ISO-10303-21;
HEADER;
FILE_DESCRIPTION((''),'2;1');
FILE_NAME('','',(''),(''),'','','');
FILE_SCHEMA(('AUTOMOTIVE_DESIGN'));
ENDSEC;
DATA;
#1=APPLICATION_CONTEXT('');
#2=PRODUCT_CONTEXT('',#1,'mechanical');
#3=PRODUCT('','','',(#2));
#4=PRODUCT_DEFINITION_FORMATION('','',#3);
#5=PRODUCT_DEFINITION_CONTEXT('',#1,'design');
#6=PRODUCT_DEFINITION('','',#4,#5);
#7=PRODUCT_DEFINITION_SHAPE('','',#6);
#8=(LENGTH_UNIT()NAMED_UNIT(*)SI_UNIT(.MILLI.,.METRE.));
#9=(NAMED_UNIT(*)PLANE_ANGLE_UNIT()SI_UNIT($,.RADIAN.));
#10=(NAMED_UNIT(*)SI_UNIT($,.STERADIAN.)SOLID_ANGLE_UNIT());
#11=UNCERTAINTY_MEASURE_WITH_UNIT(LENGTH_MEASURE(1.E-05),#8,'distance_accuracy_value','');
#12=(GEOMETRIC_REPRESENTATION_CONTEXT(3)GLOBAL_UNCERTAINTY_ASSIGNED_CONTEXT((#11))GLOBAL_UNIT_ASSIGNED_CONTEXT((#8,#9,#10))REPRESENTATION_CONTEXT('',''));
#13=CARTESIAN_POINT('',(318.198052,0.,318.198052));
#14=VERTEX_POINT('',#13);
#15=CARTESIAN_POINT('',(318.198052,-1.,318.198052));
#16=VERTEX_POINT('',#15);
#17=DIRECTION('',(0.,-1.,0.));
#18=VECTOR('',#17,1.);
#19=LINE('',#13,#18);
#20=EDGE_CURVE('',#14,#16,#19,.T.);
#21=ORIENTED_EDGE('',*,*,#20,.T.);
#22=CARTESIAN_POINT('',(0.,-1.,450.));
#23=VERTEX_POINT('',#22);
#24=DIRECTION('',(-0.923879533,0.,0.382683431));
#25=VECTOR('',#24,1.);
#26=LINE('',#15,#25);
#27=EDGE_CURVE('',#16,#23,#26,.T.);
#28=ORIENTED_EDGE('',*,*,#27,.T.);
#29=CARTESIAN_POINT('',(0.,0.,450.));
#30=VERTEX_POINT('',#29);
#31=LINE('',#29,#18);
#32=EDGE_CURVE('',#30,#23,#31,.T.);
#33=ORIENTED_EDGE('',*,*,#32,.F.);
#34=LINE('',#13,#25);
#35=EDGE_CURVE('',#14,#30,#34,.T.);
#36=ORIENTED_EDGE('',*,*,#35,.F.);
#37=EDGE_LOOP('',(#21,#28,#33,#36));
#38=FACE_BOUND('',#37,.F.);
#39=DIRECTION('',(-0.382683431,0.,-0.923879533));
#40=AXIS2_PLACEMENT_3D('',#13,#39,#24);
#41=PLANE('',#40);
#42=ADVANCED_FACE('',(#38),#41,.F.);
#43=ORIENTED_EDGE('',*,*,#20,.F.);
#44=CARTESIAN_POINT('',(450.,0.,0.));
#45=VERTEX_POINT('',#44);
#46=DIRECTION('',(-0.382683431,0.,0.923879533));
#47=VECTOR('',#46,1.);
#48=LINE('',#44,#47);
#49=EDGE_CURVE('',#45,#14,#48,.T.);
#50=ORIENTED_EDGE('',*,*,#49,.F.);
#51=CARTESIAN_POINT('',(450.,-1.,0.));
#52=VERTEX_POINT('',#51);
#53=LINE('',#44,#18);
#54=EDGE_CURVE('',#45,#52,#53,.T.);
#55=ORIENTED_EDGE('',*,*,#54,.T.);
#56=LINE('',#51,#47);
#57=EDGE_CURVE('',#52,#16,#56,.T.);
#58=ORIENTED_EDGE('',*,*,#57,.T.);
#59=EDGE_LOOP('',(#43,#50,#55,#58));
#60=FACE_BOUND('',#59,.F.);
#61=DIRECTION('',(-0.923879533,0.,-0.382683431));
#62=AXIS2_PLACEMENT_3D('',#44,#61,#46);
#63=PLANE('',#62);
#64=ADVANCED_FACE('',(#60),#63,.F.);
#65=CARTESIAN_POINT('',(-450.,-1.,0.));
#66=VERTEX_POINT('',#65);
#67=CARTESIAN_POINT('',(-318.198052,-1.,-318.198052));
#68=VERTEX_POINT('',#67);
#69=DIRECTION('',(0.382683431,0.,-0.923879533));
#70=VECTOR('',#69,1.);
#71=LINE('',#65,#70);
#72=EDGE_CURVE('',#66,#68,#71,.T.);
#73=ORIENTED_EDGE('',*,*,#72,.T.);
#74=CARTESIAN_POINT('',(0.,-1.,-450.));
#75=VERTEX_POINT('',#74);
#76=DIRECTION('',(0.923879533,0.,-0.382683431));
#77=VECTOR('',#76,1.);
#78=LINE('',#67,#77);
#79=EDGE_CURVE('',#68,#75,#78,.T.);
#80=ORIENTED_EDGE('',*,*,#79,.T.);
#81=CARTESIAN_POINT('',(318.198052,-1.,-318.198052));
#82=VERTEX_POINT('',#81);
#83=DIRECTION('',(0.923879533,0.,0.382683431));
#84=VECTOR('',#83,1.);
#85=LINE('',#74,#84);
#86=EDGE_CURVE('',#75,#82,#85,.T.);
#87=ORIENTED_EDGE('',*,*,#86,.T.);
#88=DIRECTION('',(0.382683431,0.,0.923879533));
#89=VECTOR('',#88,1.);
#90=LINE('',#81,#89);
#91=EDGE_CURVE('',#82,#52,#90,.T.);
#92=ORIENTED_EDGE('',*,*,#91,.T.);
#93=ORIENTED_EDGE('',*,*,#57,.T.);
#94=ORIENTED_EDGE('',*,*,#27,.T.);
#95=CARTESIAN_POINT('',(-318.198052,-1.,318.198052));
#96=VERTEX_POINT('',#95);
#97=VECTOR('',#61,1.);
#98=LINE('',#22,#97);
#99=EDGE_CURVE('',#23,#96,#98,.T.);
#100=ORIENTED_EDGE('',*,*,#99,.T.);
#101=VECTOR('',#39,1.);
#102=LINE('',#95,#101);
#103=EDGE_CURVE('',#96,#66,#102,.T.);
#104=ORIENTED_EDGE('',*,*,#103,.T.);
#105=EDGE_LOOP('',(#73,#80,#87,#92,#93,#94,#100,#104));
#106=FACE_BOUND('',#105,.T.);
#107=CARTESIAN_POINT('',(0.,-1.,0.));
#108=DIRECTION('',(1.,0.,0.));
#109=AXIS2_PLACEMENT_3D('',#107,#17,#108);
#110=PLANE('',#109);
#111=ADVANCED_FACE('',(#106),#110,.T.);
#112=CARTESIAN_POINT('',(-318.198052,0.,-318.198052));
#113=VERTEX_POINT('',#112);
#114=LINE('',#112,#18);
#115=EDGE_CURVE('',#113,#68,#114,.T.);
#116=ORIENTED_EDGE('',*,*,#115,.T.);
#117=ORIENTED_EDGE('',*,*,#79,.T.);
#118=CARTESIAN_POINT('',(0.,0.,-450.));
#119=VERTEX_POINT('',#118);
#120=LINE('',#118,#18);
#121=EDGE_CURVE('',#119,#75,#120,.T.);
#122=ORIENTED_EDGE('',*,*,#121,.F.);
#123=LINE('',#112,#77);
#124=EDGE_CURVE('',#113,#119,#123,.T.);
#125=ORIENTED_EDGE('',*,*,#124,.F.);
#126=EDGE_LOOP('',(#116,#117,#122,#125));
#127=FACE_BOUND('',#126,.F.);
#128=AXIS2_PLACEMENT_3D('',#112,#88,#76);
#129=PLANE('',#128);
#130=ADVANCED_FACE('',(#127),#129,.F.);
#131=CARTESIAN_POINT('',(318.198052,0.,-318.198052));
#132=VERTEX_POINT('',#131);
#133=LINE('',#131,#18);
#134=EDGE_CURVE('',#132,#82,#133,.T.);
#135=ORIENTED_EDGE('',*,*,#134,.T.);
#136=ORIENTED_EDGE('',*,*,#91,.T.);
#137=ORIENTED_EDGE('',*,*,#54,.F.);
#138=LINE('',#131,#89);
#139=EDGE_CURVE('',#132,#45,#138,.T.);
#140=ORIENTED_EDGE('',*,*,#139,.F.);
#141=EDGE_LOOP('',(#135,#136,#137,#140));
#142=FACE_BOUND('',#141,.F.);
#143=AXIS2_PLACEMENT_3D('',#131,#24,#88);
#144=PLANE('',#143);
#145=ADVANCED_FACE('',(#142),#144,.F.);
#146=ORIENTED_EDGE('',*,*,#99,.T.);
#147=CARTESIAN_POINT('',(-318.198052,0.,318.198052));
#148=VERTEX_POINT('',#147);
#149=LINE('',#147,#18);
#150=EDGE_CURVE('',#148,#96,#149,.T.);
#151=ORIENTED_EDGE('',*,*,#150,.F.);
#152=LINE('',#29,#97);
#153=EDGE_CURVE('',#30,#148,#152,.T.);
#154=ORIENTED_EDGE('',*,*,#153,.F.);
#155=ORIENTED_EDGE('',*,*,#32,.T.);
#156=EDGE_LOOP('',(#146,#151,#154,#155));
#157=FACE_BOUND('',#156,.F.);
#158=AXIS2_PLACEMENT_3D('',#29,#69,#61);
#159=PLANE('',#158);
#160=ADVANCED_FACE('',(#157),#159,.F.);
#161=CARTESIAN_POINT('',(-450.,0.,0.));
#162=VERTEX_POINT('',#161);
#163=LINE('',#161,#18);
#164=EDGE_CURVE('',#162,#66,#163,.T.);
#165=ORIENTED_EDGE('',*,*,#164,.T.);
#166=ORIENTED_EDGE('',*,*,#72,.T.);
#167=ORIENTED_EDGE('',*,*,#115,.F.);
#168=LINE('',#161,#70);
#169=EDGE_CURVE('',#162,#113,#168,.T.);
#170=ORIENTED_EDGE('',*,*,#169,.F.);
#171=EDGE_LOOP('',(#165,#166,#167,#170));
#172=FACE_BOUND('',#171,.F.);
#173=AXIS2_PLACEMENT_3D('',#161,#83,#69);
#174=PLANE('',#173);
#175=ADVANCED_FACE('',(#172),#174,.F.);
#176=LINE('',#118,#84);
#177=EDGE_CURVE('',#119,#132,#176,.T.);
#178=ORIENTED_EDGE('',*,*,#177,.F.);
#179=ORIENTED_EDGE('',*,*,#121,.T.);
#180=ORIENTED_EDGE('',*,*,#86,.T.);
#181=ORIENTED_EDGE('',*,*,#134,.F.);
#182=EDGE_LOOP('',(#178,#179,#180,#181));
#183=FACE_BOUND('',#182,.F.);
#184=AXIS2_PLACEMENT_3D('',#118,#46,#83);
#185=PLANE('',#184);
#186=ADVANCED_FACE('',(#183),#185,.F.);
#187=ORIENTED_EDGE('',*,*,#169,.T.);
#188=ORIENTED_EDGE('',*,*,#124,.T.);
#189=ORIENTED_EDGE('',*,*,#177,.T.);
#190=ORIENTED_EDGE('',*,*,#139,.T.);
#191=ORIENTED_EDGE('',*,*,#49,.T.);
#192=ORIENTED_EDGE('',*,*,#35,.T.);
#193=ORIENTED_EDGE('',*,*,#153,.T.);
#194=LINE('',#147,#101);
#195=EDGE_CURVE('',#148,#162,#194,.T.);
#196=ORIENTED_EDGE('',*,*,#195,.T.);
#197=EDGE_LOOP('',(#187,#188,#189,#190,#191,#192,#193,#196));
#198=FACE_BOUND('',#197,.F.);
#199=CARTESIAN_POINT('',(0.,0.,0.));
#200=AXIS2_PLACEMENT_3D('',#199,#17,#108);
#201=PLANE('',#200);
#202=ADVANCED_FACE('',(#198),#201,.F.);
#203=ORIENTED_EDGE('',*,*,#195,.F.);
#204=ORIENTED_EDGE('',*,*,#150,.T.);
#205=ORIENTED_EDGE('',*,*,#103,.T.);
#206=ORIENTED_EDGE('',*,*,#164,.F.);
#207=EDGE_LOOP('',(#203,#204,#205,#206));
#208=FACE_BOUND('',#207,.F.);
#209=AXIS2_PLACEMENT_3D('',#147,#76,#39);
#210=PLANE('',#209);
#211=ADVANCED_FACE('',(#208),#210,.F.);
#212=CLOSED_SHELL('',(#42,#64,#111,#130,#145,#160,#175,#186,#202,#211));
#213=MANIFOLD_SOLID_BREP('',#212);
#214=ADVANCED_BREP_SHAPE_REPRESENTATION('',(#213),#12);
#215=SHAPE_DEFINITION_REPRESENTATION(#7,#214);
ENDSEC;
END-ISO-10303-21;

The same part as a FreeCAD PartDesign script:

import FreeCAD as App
import Part
import Sketcher
from FreeCAD import Vector
Q = App.Units.Quantity

doc = App.newDocument("Part")
body = doc.addObject("PartDesign::Body", "Body")

# Sketch on XZ plane
sketch1 = doc.addObject("Sketcher::SketchObject", "Sketch")
body.addObject(sketch1)
sketch1.AttachmentSupport = (doc.XZ_Plane, [""])
sketch1.MapMode = "FlatFace"
sketch1.addGeometry([
    Part.LineSegment(Vector(450, 0, 0), Vector(318, 318, 0)),  # 0
    Part.LineSegment(Vector(318, 318, 0), Vector(0, 450, 0)),  # 1
    Part.LineSegment(Vector(0, 450, 0), Vector(-318, 318, 0)),  # 2
    Part.LineSegment(Vector(-318, 318, 0), Vector(-450, 0, 0)),  # 3
    Part.LineSegment(Vector(-450, 0, 0), Vector(-318, -318, 0)),  # 4
    Part.LineSegment(Vector(-318, -318, 0), Vector(0, -450, 0)),  # 5
    Part.LineSegment(Vector(0, -450, 0), Vector(318, -318, 0)),  # 6
    Part.LineSegment(Vector(318, -318, 0), Vector(450, 0, 0)),  # 7
], False)
sketch1.addConstraint([
    Sketcher.Constraint("Coincident", 0, 2, 1, 1),
    Sketcher.Constraint("Coincident", 1, 2, 2, 1),
    Sketcher.Constraint("Coincident", 2, 2, 3, 1),
    Sketcher.Constraint("Coincident", 3, 2, 4, 1),
    Sketcher.Constraint("Coincident", 4, 2, 5, 1),
    Sketcher.Constraint("Coincident", 5, 2, 6, 1),
    Sketcher.Constraint("Coincident", 6, 2, 7, 1),
    Sketcher.Constraint("Coincident", 7, 2, 0, 1),
    Sketcher.Constraint("Symmetric", 0, 2, 4, 2, -1, 1),
    Sketcher.Constraint("Symmetric", 1, 2, 5, 2, -1, 1),
    Sketcher.Constraint("Symmetric", 2, 2, 6, 2, -1, 1),
    Sketcher.Constraint("Symmetric", 3, 2, 7, 2, -1, 1),
    Sketcher.Constraint("Symmetric", 0, 2, 2, 2, -2),
    Sketcher.Constraint("PointOnObject", 1, 2, -2),
    Sketcher.Constraint("PointOnObject", 3, 2, -1),
    Sketcher.Constraint("Perpendicular", 0, 2),
    Sketcher.Constraint("Equal", 0, 1),
    Sketcher.Constraint("DistanceY", -1, 1, 1, 2, Q("450 mm")),
    Sketcher.Constraint("Angle", 0, Q("112.5 deg")),
])
pad1 = doc.addObject("PartDesign::Pad", "Pad")
body.addObject(pad1)
pad1.Profile = sketch1
pad1.Length = 1

doc.recompute()
